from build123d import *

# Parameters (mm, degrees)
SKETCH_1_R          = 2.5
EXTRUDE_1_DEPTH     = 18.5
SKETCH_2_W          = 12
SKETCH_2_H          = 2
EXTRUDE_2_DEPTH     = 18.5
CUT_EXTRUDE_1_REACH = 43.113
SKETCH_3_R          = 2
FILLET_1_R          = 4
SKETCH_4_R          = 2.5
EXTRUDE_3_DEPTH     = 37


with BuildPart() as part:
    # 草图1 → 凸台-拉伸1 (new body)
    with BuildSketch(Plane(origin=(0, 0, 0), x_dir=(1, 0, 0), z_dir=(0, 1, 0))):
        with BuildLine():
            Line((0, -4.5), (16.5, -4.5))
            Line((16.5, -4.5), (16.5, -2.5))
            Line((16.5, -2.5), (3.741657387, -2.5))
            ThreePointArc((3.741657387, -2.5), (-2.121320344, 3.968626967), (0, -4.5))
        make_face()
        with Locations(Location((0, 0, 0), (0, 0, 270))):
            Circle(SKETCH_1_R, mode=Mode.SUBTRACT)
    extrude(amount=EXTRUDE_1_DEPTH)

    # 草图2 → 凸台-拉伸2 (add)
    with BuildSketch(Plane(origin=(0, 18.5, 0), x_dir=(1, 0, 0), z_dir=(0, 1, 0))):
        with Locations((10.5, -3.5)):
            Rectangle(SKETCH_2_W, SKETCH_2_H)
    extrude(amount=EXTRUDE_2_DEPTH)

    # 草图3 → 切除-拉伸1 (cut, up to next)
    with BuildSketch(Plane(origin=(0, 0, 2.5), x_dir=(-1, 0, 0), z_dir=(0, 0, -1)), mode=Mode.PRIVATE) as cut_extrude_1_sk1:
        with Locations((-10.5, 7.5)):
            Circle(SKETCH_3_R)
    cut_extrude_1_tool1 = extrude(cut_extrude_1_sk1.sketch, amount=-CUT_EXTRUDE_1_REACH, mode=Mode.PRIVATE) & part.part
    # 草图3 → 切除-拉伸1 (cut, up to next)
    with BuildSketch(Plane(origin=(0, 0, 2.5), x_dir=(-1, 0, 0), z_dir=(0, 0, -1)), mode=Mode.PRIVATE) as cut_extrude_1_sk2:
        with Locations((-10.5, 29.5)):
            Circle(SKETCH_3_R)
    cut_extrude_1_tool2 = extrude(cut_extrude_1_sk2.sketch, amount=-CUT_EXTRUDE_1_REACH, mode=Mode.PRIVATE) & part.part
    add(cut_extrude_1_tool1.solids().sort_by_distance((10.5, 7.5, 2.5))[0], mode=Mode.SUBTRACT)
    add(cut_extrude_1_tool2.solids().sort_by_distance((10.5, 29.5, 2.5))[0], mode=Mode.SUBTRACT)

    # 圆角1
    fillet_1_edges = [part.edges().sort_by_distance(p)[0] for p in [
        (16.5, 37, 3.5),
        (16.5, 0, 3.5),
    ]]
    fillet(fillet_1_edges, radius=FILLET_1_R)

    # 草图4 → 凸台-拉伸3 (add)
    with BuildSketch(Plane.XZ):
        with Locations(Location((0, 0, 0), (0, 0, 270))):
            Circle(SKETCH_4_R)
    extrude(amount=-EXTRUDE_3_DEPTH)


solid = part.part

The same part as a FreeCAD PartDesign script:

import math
import FreeCAD as App
import Part
import Sketcher

V = App.Vector


def edges_at(feature, points):
    """Names of the edges that pass closest to the given points."""
    edges = feature.Shape.Edges
    near = lambda p: min(range(len(edges)), key=lambda i: edges[i].distToShape(Part.Vertex(*p))[0])
    return sorted({f"Edge{near(p) + 1}" for p in points})


def add_polygon(sketch, points):
    """Adds a closed chain of lines whose ends are joined by coincident constraints."""
    first, n = sketch.GeometryCount, len(points)
    for a, b in zip(points, points[1:] + points[:1]):
        sketch.addGeometry(Part.LineSegment(App.Vector(*a, 0), App.Vector(*b, 0)), False)
    for i in range(n):
        sketch.addConstraint(Sketcher.Constraint("Coincident", first + i, 2, first + (i + 1) % n, 1))

doc = App.newDocument("Part")
params = doc.addObject("Spreadsheet::Sheet", "Params")
for row, (alias, value) in enumerate([
    ("sketch1_diameter", "5 mm"),
    ("sketch1_radius", "4.5 mm"),
    ("sketch1_height", "2 mm"),
    ("sketch1_width", "16.5 mm"),
    ("pad1_length", "18.5 mm"),
    ("sketch2_width", "12 mm"),
    ("sketch2_height", "2 mm"),
    ("pad2_length", "18.5 mm"),
    ("sketch3_diameter", "4 mm"),
    ("sketch4_diameter", "4 mm"),
    ("fillet_radius", "4 mm"),
    ("sketch5_diameter", "5 mm"),
    ("pad3_length", "37 mm"),
], start=1):
    params.set(f"A{row}", alias)
    params.set(f"B{row}", "=" + value)
    params.setAlias(f"B{row}", alias)

body = doc.addObject("PartDesign::Body", "Body")

sketch1 = body.newObject("Sketcher::SketchObject", "Sketch")
sketch1.AttachmentSupport = (doc.getObject("XZ_Plane"), [""])
sketch1.MapMode = "FlatFace"
sketch1.addGeometry([
    Part.LineSegment(V(0, 4.5, 0), V(16.5, 4.5, 0)),
    Part.LineSegment(V(16.5, 4.5, 0), V(16.5, 2.5, 0)),
    Part.LineSegment(V(16.5, 2.5, 0), V(3.7, 2.5, 0)),
    Part.ArcOfCircle(Part.Circle(V(0, 0, 0), V(0, 0, 1), 4.5), math.radians(90), math.radians(394)),
    Part.Circle(V(0, 0, 0), V(0, 0, 1), 2.5),
], False)
sketch1.addConstraint([
    Sketcher.Constraint("Coincident", 0, 2, 1, 1),
    Sketcher.Constraint("Coincident", 1, 2, 2, 1),
    Sketcher.Constraint("Coincident", 2, 2, 3, 2),
    Sketcher.Constraint("Tangent", 3, 1, 0, 1),
    Sketcher.Constraint("Horizontal", 0),
    Sketcher.Constraint("Vertical", 1),
    Sketcher.Constraint("Horizontal", 2),
    Sketcher.Constraint("Coincident", 3, 3, -1, 1),
    Sketcher.Constraint("Coincident", 4, 3, -1, 1),
    Sketcher.Constraint("Diameter", 4, 5.0),
    Sketcher.Constraint("Radius", 3, 4.5),
    Sketcher.Constraint("DistanceY", 1, 2, 1, 1, 2.0),
    Sketcher.Constraint("DistanceX", 0, 1, 0, 2, 16.5),
])
sketch1.setExpression("Constraints[9]", "Params.sketch1_diameter")
sketch1.setExpression("Constraints[10]", "Params.sketch1_radius")
sketch1.setExpression("Constraints[11]", "Params.sketch1_height")
sketch1.setExpression("Constraints[12]", "Params.sketch1_width")
pad1 = body.newObject("PartDesign::Pad", "Pad")
pad1.Profile = sketch1
pad1.setExpression("Length", "Params.pad1_length")
pad1.Reversed = True

sketch2 = body.newObject("Sketcher::SketchObject", "Sketch001")
sketch2.AttachmentSupport = (doc.getObject("XZ_Plane"), [""])
sketch2.MapMode = "FlatFace"
sketch2.AttachmentOffset = App.Placement(V(0, 0, -18.5), App.Rotation())
add_polygon(sketch2, [(4.5, 2.5), (4.5, 4.5), (16.5, 4.5), (16.5, 2.5)])
sketch2.addConstraint([
    Sketcher.Constraint("Vertical", 0),
    Sketcher.Constraint("Horizontal", 1),
    Sketcher.Constraint("Vertical", 2),
    Sketcher.Constraint("Horizontal", 3),
    Sketcher.Constraint("DistanceX", 1, 1, 1, 2, 12.0),
    Sketcher.Constraint("DistanceY", 0, 1, 0, 2, 2.0),
    Sketcher.Constraint("DistanceX", -1, 1, 0, 2, 4.5),
    Sketcher.Constraint("DistanceY", -1, 1, 0, 2, 4.5),
])
sketch2.setExpression("Constraints[8]", "Params.sketch2_width")
sketch2.setExpression("Constraints[9]", "Params.sketch2_height")
pad2 = body.newObject("PartDesign::Pad", "Pad001")
pad2.Profile = sketch2
pad2.setExpression("Length", "Params.pad2_length")
pad2.Reversed = True

sketch3 = body.newObject("Sketcher::SketchObject", "Sketch002")
sketch3.AttachmentSupport = (doc.getObject("XY_Plane"), [""])
sketch3.MapMode = "FlatFace"
sketch3.AttachmentOffset = App.Placement(V(0, 0, 2.5), App.Rotation())
sketch3.addGeometry(Part.Circle(V(10.5, 7.5, 0), V(0, 0, 1), 2), False)
sketch3.addConstraint([
    Sketcher.Constraint("Diameter", 0, 4.0),
    Sketcher.Constraint("DistanceX", -1, 1, 0, 3, 10.5),
    Sketcher.Constraint("DistanceY", -1, 1, 0, 3, 7.5),
])
sketch3.setExpression("Constraints[0]", "Params.sketch3_diameter")
pocket1 = body.newObject("PartDesign::Pocket", "Pocket")
pocket1.Profile = sketch3
pocket1.Type = "UpToFirst"
pocket1.Reversed = True

sketch4 = body.newObject("Sketcher::SketchObject", "Sketch003")
sketch4.AttachmentSupport = (doc.getObject("XY_Plane"), [""])
sketch4.MapMode = "FlatFace"
sketch4.AttachmentOffset = App.Placement(V(0, 0, 2.5), App.Rotation())
sketch4.addGeometry(Part.Circle(V(10.5, 29.5, 0), V(0, 0, 1), 2), False)
sketch4.addConstraint([
    Sketcher.Constraint("Diameter", 0, 4.0),
    Sketcher.Constraint("DistanceX", -1, 1, 0, 3, 10.5),
    Sketcher.Constraint("DistanceY", -1, 1, 0, 3, 29.5),
])
sketch4.setExpression("Constraints[0]", "Params.sketch4_diameter")
pocket2 = body.newObject("PartDesign::Pocket", "Pocket001")
pocket2.Profile = sketch4
pocket2.Type = "UpToFirst"
pocket2.Reversed = True
doc.recompute()

fillet = body.newObject("PartDesign::Fillet", "Fillet")
fillet.Base = (pocket2, edges_at(pocket2, [(16.5, 37, 3.5), (16.5, 0, 3.5)]))
fillet.setExpression("Radius", "Params.fillet_radius")

sketch5 = body.newObject("Sketcher::SketchObject", "Sketch004")
sketch5.AttachmentSupport = (doc.getObject("XZ_Plane"), [""])
sketch5.MapMode = "FlatFace"
sketch5.addGeometry(Part.Circle(V(0, 0, 0), V(0, 0, 1), 2.5), False)
sketch5.addConstraint([
    Sketcher.Constraint("Coincident", 0, 3, -1, 1),
    Sketcher.Constraint("Diameter", 0, 5.0),
])
sketch5.setExpression("Constraints[1]", "Params.sketch5_diameter")
pad3 = body.newObject("PartDesign::Pad", "Pad002")
pad3.Profile = sketch5
pad3.setExpression("Length", "Params.pad3_length")
pad3.Reversed = True

doc.recompute()
